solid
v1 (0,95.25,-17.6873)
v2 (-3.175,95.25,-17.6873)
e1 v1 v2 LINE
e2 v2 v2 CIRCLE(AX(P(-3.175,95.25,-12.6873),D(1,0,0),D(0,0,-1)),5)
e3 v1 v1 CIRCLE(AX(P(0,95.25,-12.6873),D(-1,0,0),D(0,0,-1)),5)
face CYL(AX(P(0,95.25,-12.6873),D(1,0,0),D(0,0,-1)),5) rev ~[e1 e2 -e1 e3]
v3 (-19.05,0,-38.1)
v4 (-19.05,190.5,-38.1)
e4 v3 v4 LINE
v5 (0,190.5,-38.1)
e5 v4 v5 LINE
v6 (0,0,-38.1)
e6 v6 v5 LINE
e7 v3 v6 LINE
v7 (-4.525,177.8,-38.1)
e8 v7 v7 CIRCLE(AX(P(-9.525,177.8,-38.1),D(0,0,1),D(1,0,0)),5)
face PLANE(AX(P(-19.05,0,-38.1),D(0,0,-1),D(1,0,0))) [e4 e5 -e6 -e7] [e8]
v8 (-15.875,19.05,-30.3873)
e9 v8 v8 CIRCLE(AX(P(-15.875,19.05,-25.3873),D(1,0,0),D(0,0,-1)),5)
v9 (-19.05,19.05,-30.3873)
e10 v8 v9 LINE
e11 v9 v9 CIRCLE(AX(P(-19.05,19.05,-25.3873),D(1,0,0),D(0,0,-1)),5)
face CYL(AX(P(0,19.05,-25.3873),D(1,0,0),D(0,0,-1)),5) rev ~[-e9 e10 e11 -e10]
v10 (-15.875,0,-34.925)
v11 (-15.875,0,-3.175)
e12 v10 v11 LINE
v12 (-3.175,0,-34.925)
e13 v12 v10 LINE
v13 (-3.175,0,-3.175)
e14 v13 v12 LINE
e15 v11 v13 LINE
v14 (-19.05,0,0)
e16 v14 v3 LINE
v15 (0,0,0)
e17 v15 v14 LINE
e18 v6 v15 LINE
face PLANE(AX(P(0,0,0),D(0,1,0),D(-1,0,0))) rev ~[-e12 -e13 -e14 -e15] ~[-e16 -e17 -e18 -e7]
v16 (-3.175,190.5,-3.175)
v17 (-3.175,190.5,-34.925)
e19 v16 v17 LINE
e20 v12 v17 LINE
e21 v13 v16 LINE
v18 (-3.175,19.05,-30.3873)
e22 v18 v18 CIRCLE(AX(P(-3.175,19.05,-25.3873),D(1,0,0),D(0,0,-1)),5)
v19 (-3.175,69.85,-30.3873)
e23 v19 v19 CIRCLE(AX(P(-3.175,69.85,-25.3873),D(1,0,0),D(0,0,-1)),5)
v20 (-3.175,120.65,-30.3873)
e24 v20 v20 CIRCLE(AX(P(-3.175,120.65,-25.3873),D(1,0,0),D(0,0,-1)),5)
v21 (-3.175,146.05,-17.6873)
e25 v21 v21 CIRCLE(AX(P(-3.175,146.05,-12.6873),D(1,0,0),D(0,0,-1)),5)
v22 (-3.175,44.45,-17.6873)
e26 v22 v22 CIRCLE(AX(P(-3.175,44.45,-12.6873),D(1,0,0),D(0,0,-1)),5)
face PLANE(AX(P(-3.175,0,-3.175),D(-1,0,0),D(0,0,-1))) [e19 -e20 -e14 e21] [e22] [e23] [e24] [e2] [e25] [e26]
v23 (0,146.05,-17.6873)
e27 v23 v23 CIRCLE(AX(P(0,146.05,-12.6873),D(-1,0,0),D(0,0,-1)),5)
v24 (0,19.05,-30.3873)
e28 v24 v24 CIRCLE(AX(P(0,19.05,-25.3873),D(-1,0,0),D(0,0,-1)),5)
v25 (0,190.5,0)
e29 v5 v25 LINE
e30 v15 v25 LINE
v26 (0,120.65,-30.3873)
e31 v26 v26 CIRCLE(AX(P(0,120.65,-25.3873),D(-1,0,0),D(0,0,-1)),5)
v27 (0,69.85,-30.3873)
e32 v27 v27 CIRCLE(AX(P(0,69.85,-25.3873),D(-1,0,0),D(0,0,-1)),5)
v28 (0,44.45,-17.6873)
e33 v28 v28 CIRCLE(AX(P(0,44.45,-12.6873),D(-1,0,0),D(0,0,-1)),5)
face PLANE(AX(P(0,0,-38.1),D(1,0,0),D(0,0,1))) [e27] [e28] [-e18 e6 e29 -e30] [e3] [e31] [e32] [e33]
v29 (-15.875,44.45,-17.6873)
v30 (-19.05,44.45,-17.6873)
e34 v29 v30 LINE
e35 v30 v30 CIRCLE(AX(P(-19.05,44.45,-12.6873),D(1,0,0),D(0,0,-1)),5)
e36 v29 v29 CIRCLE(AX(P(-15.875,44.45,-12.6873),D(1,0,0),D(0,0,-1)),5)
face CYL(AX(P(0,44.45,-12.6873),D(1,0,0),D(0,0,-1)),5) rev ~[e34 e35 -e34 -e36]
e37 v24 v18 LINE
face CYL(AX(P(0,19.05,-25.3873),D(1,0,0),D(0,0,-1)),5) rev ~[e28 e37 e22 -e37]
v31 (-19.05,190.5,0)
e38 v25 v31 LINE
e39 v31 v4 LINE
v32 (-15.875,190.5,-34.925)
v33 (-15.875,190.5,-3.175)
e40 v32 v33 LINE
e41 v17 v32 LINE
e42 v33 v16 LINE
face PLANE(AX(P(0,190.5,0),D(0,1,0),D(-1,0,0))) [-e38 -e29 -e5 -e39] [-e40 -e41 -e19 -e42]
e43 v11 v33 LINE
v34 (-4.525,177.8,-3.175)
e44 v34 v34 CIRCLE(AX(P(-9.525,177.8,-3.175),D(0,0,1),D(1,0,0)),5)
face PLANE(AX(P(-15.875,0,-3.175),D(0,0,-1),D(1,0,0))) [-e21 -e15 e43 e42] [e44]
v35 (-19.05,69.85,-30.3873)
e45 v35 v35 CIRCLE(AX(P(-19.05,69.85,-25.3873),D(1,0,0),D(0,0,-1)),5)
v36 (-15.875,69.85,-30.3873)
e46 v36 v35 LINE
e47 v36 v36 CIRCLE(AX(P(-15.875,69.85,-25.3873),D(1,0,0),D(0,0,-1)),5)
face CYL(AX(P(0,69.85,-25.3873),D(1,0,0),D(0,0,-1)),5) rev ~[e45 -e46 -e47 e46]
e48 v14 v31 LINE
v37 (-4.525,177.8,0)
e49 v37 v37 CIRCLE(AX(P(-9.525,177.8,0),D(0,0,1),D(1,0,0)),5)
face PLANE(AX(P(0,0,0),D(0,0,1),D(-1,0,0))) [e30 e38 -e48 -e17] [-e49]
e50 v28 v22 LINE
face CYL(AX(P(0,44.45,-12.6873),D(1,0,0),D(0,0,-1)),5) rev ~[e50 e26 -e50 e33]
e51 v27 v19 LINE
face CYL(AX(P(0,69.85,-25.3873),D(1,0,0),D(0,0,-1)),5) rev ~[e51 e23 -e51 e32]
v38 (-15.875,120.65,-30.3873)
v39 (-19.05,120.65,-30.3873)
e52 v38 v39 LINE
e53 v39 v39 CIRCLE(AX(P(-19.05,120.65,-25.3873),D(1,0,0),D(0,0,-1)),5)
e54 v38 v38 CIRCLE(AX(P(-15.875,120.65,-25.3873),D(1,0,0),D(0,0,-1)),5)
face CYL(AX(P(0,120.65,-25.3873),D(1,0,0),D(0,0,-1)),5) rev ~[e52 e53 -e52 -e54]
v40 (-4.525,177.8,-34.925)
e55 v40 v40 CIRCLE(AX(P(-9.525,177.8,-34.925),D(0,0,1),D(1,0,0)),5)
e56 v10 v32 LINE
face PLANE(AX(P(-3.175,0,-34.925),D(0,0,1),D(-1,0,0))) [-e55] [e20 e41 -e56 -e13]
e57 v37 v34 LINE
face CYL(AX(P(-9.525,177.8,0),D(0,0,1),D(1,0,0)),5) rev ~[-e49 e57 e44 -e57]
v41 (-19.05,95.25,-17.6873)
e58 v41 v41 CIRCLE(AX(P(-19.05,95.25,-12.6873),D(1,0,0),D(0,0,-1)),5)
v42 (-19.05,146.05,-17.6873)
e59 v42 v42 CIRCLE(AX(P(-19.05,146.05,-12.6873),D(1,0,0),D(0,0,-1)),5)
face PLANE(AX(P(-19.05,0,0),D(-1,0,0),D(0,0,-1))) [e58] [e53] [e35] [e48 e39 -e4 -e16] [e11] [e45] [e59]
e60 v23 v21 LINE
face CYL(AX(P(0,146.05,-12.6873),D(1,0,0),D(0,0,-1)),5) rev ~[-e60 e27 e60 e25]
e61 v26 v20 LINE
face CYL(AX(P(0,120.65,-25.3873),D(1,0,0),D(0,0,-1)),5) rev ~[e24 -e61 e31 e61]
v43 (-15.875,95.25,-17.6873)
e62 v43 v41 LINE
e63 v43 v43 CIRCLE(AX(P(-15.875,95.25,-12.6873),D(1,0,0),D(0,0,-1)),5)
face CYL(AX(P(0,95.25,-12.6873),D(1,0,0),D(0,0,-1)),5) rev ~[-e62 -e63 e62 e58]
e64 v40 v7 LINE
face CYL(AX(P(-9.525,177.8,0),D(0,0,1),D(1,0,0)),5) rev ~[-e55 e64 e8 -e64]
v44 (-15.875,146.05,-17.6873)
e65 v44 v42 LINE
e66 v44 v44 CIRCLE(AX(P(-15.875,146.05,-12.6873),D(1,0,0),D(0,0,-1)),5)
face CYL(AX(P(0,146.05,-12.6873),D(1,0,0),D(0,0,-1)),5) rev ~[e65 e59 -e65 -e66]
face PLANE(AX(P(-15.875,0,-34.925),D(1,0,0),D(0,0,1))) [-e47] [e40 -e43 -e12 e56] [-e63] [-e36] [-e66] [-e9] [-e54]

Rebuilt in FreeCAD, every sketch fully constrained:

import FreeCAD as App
import Part
import Sketcher
from FreeCAD import Vector
Q = App.Units.Quantity

doc = App.newDocument("Part")
params = doc.addObject("Spreadsheet::Sheet", "Params")
for row, (alias, value) in enumerate([
    ("sketch1_height", "1.5 in"),
    ("sketch1_width", "0.75 in"),
    ("sketch1_width2", "0.5 in"),
    ("pad1_length", "7.5 in"),
    ("pocket1_length", "8.0625 in"),
    ("pocket2_length", "8.0625 in"),
], start=1):
    params.set(f"A{row}", alias)
    params.set(f"B{row}", "=" + value)
    params.setAlias(f"B{row}", alias)

body = doc.addObject("PartDesign::Body", "Body")

sketch1 = doc.addObject("Sketcher::SketchObject", "Sketch")
body.addObject(sketch1)
sketch1.AttachmentSupport = (doc.XZ_Plane, [""])
sketch1.MapMode = "FlatFace"
sketch1.addGeometry(Part.LineSegment(Vector(-19, 0, 0), Vector(0, 0, 0)), False)
sketch1.addGeometry(Part.LineSegment(Vector(0, 0, 0), Vector(0, -38, 0)), False)
sketch1.addGeometry(Part.LineSegment(Vector(0, -38, 0), Vector(-19, -38, 0)), False)
sketch1.addGeometry(Part.LineSegment(Vector(-19, -38, 0), Vector(-19, 0, 0)), False)
sketch1.addGeometry(Part.LineSegment(Vector(-16, -3, 0), Vector(-16, -35, 0)), False)
sketch1.addGeometry(Part.LineSegment(Vector(-16, -35, 0), Vector(-3, -35, 0)), False)
sketch1.addGeometry(Part.LineSegment(Vector(-3, -35, 0), Vector(-3, -3, 0)), False)
sketch1.addGeometry(Part.LineSegment(Vector(-3, -3, 0), Vector(-16, -3, 0)), False)
sketch1.addConstraint(Sketcher.Constraint("Coincident", 0, 2, 1, 1))
sketch1.addConstraint(Sketcher.Constraint("Coincident", 1, 2, 2, 1))
sketch1.addConstraint(Sketcher.Constraint("Coincident", 2, 2, 3, 1))
sketch1.addConstraint(Sketcher.Constraint("Coincident", 3, 2, 0, 1))
sketch1.addConstraint(Sketcher.Constraint("Coincident", 4, 2, 5, 1))
sketch1.addConstraint(Sketcher.Constraint("Coincident", 5, 2, 6, 1))
sketch1.addConstraint(Sketcher.Constraint("Coincident", 6, 2, 7, 1))
sketch1.addConstraint(Sketcher.Constraint("Coincident", 7, 2, 4, 1))
sketch1.addConstraint(Sketcher.Constraint("Horizontal", 0))
sketch1.addConstraint(Sketcher.Constraint("Vertical", 1))
sketch1.addConstraint(Sketcher.Constraint("Horizontal", 2))
sketch1.addConstraint(Sketcher.Constraint("Vertical", 3))
sketch1.addConstraint(Sketcher.Constraint("Vertical", 4))
sketch1.addConstraint(Sketcher.Constraint("Horizontal", 5))
sketch1.addConstraint(Sketcher.Constraint("Vertical", 6))
sketch1.addConstraint(Sketcher.Constraint("Horizontal", 7))
sketch1.addConstraint(Sketcher.Constraint("Coincident", 0, 2, -1, 1))
sketch1.addConstraint(Sketcher.Constraint("DistanceY", 1, 2, 1, 1, Q("1.5 in")))
sketch1.addConstraint(Sketcher.Constraint("DistanceX", 0, 1, 0, 2, Q("0.75 in")))
sketch1.addConstraint(Sketcher.Constraint("DistanceX", 5, 1, 5, 2, Q("0.5 in")))
sketch1.addConstraint(Sketcher.Constraint("DistanceX", 5, 2, -1, 1, Q("0.125 in")))
sketch1.addConstraint(Sketcher.Constraint("DistanceY", 6, 2, -1, 1, Q("0.125 in")))
sketch1.addConstraint(Sketcher.Constraint("DistanceY", 2, 2, 4, 2, Q("0.125 in")))
sketch1.setExpression("Constraints[17]", "Params.sketch1_height")
sketch1.setExpression("Constraints[18]", "Params.sketch1_width")
sketch1.setExpression("Constraints[19]", "Params.sketch1_width2")
pad1 = doc.addObject("PartDesign::Pad", "Pad")
body.addObject(pad1)
pad1.Profile = sketch1
pad1.setExpression("Length", "Params.pad1_length")
pad1.Reversed = True

sketch2 = doc.addObject("Sketcher::SketchObject", "Sketch001")
body.addObject(sketch2)
sketch2.AttachmentSupport = (doc.XY_Plane, [""])
sketch2.MapMode = "FlatFace"
sketch2.addGeometry(Part.Circle(Vector(-10, 178, 0), Vector(0, 0, 1), 5), False)
sketch2.addConstraint(Sketcher.Constraint("Diameter", 0, Q("0.3937 in")))
sketch2.addConstraint(Sketcher.Constraint("DistanceX", 0, 3, -1, 1, Q("0.375 in")))
sketch2.addConstraint(Sketcher.Constraint("DistanceY", -1, 1, 0, 3, Q("7 in")))
pocket1 = doc.addObject("PartDesign::Pocket", "Pocket")
body.addObject(pocket1)
pocket1.Profile = sketch2
pocket1.setExpression("Length", "Params.pocket1_length")

sketch3 = doc.addObject("Sketcher::SketchObject", "Sketch002")
body.addObject(sketch3)
sketch3.AttachmentSupport = (doc.YZ_Plane, [""])
sketch3.MapMode = "FlatFace"
sketch3.addGeometry(Part.Circle(Vector(121, -25, 0), Vector(0, 0, 1), 5), False)
sketch3.addGeometry(Part.Circle(Vector(146, -13, 0), Vector(0, 0, 1), 5), False)
sketch3.addGeometry(Part.Circle(Vector(70, -25, 0), Vector(0, 0, 1), 5), False)
sketch3.addGeometry(Part.Circle(Vector(19, -25, 0), Vector(0, 0, 1), 5), False)
sketch3.addGeometry(Part.Circle(Vector(95, -13, 0), Vector(0, 0, 1), 5), False)
sketch3.addGeometry(Part.Circle(Vector(44, -13, 0), Vector(0, 0, 1), 5), False)
sketch3.addConstraint(Sketcher.Constraint("Equal", 0, 1))
sketch3.addConstraint(Sketcher.Constraint("Equal", 1, 2))
sketch3.addConstraint(Sketcher.Constraint("Equal", 2, 3))
sketch3.addConstraint(Sketcher.Constraint("Equal", 3, 4))
sketch3.addConstraint(Sketcher.Constraint("Equal", 4, 5))
sketch3.addConstraint(Sketcher.Constraint("Horizontal", 0, 3, 2, 3))
sketch3.addConstraint(Sketcher.Constraint("Horizontal", 2, 3, 3, 3))
sketch3.addConstraint(Sketcher.Constraint("Horizontal", 1, 3, 4, 3))
sketch3.addConstraint(Sketcher.Constraint("Horizontal", 4, 3, 5, 3))
sketch3.addConstraint(Sketcher.Constraint("DistanceX", 0, 3, 1, 3, Q("1 in")))
sketch3.addConstraint(Sketcher.Constraint("DistanceX", 2, 3, 0, 3, Q("2 in")))
sketch3.addConstraint(Sketcher.Constraint("DistanceX", 3, 3, 2, 3, Q("2 in")))
sketch3.addConstraint(Sketcher.Constraint("DistanceX", 4, 3, 0, 3, Q("1 in")))
sketch3.addConstraint(Sketcher.Constraint("DistanceX", 5, 3, 2, 3, Q("1 in")))
sketch3.addConstraint(Sketcher.Constraint("Diameter", 0, Q("0.3937 in")))
sketch3.addConstraint(Sketcher.Constraint("DistanceY", 0, 3, 1, 3, Q("0.5 in")))
sketch3.addConstraint(Sketcher.Constraint("DistanceX", -1, 1, 3, 3, Q("0.75 in")))
sketch3.addConstraint(Sketcher.Constraint("DistanceY", 0, 3, -1, 1, Q("0.9995 in")))
pocket2 = doc.addObject("PartDesign::Pocket", "Pocket001")
body.addObject(pocket2)
pocket2.Profile = sketch3
pocket2.setExpression("Length", "Params.pocket2_length")

doc.recompute()
